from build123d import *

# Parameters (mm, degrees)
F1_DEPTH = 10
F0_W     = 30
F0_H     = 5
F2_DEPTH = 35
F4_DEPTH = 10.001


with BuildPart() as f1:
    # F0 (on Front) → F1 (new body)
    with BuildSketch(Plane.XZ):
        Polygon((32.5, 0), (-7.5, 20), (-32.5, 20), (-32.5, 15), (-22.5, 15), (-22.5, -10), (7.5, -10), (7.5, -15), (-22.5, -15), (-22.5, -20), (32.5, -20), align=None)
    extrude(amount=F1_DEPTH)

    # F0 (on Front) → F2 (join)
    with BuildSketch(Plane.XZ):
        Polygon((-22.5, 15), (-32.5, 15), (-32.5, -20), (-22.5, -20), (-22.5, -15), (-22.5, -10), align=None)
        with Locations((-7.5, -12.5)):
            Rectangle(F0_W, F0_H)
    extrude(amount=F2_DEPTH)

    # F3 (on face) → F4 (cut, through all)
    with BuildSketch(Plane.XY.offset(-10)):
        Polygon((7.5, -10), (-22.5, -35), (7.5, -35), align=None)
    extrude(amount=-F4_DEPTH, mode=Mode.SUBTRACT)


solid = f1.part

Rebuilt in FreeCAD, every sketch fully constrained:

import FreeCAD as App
import Part
import Sketcher

V = App.Vector


def add_polygon(sketch, points):
    """Adds a closed chain of lines whose ends are joined by coincident constraints."""
    first, n = sketch.GeometryCount, len(points)
    for a, b in zip(points, points[1:] + points[:1]):
        sketch.addGeometry(Part.LineSegment(App.Vector(*a, 0), App.Vector(*b, 0)), False)
    for i in range(n):
        sketch.addConstraint(Sketcher.Constraint("Coincident", first + i, 2, first + (i + 1) % n, 1))

doc = App.newDocument("Part")
params = doc.addObject("Spreadsheet::Sheet", "Params")
for row, (alias, value) in enumerate([
    ("sketch1_width", "25 mm"),
    ("sketch1_width2", "10 mm"),
    ("sketch1_width3", "30 mm"),
    ("sketch1_width4", "55 mm"),
    ("sketch1_height", "5 mm"),
    ("pad1_length", "10 mm"),
    ("sketch2_width", "10 mm"),
    ("sketch2_width2", "30 mm"),
    ("sketch2_height", "35 mm"),
    ("sketch2_height2", "5 mm"),
    ("pad2_length", "35 mm"),
    ("sketch3_width", "30 mm"),
    ("sketch3_height", "25 mm"),
], start=1):
    params.set(f"A{row}", alias)
    params.set(f"B{row}", "=" + value)
    params.setAlias(f"B{row}", alias)

body = doc.addObject("PartDesign::Body", "Body")

# Sketch on XZ plane
sketch1 = body.newObject("Sketcher::SketchObject", "Sketch")
sketch1.AttachmentSupport = (doc.getObject("XZ_Plane"), [""])
sketch1.MapMode = "FlatFace"
add_polygon(sketch1, [(32, 0), (-8, 20), (-32, 20), (-32, 15), (-22, 15), (-22, -10), (8, -10), (8, -15), (-22, -15), (-22, -20), (32, -20)])  # lines 0-10
sketch1.addConstraint([
    Sketcher.Constraint("Horizontal", 1),
    Sketcher.Constraint("Vertical", 2),
    Sketcher.Constraint("Horizontal", 3),
    Sketcher.Constraint("Vertical", 4),
    Sketcher.Constraint("Horizontal", 5),
    Sketcher.Constraint("Vertical", 6),
    Sketcher.Constraint("Horizontal", 7),
    Sketcher.Constraint("Vertical", 8),
    Sketcher.Constraint("Horizontal", 9),
    Sketcher.Constraint("Vertical", 10),
    Sketcher.Constraint("Symmetric", 1, 2, 9, 2, -1, 1),
    Sketcher.Constraint("Symmetric", 3, 2, 7, 2, -1),
    Sketcher.Constraint("PointOnObject", 10, 2, -1),
    Sketcher.Constraint("Equal", 1, 4),
    Sketcher.Constraint("Equal", 2, 6),
    Sketcher.Constraint("DistanceX", 1, 2, 1, 1, 25.0),
    Sketcher.Constraint("DistanceX", 3, 1, 3, 2, 10.0),
    Sketcher.Constraint("DistanceX", 5, 1, 5, 2, 30.0),
    Sketcher.Constraint("DistanceX", 9, 1, 9, 2, 55.0),
    Sketcher.Constraint("DistanceY", 2, 2, 2, 1, 5.0),
])
sketch1.setExpression("Constraints[26]", "Params.sketch1_width")
sketch1.setExpression("Constraints[27]", "Params.sketch1_width2")
sketch1.setExpression("Constraints[28]", "Params.sketch1_width3")
sketch1.setExpression("Constraints[29]", "Params.sketch1_width4")
sketch1.setExpression("Constraints[30]", "Params.sketch1_height")
pad1 = body.newObject("PartDesign::Pad", "Pad")
pad1.Profile = sketch1
pad1.setExpression("Length", "Params.pad1_length")

# Sketch on XZ plane
sketch2 = body.newObject("Sketcher::SketchObject", "Sketch001")
sketch2.AttachmentSupport = (doc.getObject("XZ_Plane"), [""])
sketch2.MapMode = "FlatFace"
add_polygon(sketch2, [(-22, 15), (-32, 15), (-32, -20), (-22, -20), (-22, -15), (8, -15), (8, -10), (-22, -10)])  # lines 0-7
sketch2.addConstraint([
    Sketcher.Constraint("Horizontal", 0),
    Sketcher.Constraint("Vertical", 1),
    Sketcher.Constraint("Horizontal", 2),
    Sketcher.Constraint("Vertical", 3),
    Sketcher.Constraint("Horizontal", 4),
    Sketcher.Constraint("Vertical", 5),
    Sketcher.Constraint("Horizontal", 6),
    Sketcher.Constraint("Vertical", 7),
    Sketcher.Constraint("Symmetric", 3, 2, 7, 2, -1),
    Sketcher.Constraint("Equal", 3, 5),
    Sketcher.Constraint("DistanceX", 0, 2, 0, 1, 10.0),
    Sketcher.Constraint("DistanceX", 4, 1, 4, 2, 30.0),
    Sketcher.Constraint("DistanceY", 1, 2, 1, 1, 35.0),
    Sketcher.Constraint("DistanceY", 3, 1, 3, 2, 5.0),
    Sketcher.Constraint("DistanceX", 0, 2, -1, 1, 32.5),
])
sketch2.setExpression("Constraints[18]", "Params.sketch2_width")
sketch2.setExpression("Constraints[19]", "Params.sketch2_width2")
sketch2.setExpression("Constraints[20]", "Params.sketch2_height")
sketch2.setExpression("Constraints[21]", "Params.sketch2_height2")
pad2 = body.newObject("PartDesign::Pad", "Pad001")
pad2.Profile = sketch2
pad2.setExpression("Length", "Params.pad2_length")

# Sketch on XY plane
sketch3 = body.newObject("Sketcher::SketchObject", "Sketch002")
sketch3.AttachmentSupport = (doc.getObject("XY_Plane"), [""])
sketch3.MapMode = "FlatFace"
sketch3.AttachmentOffset = App.Placement(V(0, 0, -10), App.Rotation())
add_polygon(sketch3, [(8, -10), (-22, -35), (8, -35)])  # lines 0-2
sketch3.addConstraint([
    Sketcher.Constraint("Horizontal", 1),
    Sketcher.Constraint("Vertical", 2),
    Sketcher.Constraint("DistanceX", 1, 1, 1, 2, 30.0),
    Sketcher.Constraint("DistanceY", 2, 1, 2, 2, 25.0),
    Sketcher.Constraint("DistanceY", 0, 2, -1, 1, 35.0),
    Sketcher.Constraint("DistanceX", 0, 2, -1, 1, 22.5),
])
sketch3.setExpression("Constraints[5]", "Params.sketch3_width")
sketch3.setExpression("Constraints[6]", "Params.sketch3_height")
pocket1 = body.newObject("PartDesign::Pocket", "Pocket")
pocket1.Profile = sketch3
pocket1.Type = "ThroughAll"

doc.recompute()
